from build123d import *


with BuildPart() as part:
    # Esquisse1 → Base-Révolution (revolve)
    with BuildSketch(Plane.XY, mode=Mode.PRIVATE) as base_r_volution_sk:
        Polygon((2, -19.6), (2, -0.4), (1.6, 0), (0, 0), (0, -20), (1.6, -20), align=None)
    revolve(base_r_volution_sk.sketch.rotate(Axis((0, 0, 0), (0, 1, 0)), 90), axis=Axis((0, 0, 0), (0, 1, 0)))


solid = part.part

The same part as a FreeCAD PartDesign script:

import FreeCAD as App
import Part
import Sketcher

V = App.Vector


def add_polygon(sketch, points):
    """Adds a closed chain of lines whose ends are joined by coincident constraints."""
    first, n = sketch.GeometryCount, len(points)
    for a, b in zip(points, points[1:] + points[:1]):
        sketch.addGeometry(Part.LineSegment(App.Vector(*a, 0), App.Vector(*b, 0)), False)
    for i in range(n):
        sketch.addConstraint(Sketcher.Constraint("Coincident", first + i, 2, first + (i + 1) % n, 1))

doc = App.newDocument("Part")
body = doc.addObject("PartDesign::Body", "Body")

# Sketch on XY plane
sketch1 = doc.addObject("Sketcher::SketchObject", "Sketch")
body.addObject(sketch1)
sketch1.AttachmentSupport = (doc.XY_Plane, [""])
sketch1.MapMode = "FlatFace"
add_polygon(sketch1, [(2, -19.6), (2, -0.4), (1.6, 0), (0, 0), (0, -20), (1.6, -20)])  # lines 0-5
sketch1.addConstraint([
    Sketcher.Constraint("Vertical", 0),
    Sketcher.Constraint("Horizontal", 2),
    Sketcher.Constraint("Vertical", 3),
    Sketcher.Constraint("Horizontal", 4),
    Sketcher.Constraint("Coincident", 2, 2, -1, 1),
    Sketcher.Constraint("Perpendicular", 1, 5),
    Sketcher.Constraint("Vertical", 1, 2, 4, 2),
    Sketcher.Constraint("Equal", 1, 5),
    Sketcher.Constraint("DistanceY", 3, 2, 3, 1, 20.0),
    Sketcher.Constraint("DistanceX", 2, 2, 2, 1, 1.6),
    Sketcher.Constraint("DistanceY", 0, 1, 0, 2, 19.2),
])
revolution = doc.addObject("PartDesign::Revolution", "Revolution")
body.addObject(revolution)
revolution.Profile = sketch1
revolution.ReferenceAxis = (sketch1, ["V_Axis"])
revolution.Angle = 360

doc.recompute()
